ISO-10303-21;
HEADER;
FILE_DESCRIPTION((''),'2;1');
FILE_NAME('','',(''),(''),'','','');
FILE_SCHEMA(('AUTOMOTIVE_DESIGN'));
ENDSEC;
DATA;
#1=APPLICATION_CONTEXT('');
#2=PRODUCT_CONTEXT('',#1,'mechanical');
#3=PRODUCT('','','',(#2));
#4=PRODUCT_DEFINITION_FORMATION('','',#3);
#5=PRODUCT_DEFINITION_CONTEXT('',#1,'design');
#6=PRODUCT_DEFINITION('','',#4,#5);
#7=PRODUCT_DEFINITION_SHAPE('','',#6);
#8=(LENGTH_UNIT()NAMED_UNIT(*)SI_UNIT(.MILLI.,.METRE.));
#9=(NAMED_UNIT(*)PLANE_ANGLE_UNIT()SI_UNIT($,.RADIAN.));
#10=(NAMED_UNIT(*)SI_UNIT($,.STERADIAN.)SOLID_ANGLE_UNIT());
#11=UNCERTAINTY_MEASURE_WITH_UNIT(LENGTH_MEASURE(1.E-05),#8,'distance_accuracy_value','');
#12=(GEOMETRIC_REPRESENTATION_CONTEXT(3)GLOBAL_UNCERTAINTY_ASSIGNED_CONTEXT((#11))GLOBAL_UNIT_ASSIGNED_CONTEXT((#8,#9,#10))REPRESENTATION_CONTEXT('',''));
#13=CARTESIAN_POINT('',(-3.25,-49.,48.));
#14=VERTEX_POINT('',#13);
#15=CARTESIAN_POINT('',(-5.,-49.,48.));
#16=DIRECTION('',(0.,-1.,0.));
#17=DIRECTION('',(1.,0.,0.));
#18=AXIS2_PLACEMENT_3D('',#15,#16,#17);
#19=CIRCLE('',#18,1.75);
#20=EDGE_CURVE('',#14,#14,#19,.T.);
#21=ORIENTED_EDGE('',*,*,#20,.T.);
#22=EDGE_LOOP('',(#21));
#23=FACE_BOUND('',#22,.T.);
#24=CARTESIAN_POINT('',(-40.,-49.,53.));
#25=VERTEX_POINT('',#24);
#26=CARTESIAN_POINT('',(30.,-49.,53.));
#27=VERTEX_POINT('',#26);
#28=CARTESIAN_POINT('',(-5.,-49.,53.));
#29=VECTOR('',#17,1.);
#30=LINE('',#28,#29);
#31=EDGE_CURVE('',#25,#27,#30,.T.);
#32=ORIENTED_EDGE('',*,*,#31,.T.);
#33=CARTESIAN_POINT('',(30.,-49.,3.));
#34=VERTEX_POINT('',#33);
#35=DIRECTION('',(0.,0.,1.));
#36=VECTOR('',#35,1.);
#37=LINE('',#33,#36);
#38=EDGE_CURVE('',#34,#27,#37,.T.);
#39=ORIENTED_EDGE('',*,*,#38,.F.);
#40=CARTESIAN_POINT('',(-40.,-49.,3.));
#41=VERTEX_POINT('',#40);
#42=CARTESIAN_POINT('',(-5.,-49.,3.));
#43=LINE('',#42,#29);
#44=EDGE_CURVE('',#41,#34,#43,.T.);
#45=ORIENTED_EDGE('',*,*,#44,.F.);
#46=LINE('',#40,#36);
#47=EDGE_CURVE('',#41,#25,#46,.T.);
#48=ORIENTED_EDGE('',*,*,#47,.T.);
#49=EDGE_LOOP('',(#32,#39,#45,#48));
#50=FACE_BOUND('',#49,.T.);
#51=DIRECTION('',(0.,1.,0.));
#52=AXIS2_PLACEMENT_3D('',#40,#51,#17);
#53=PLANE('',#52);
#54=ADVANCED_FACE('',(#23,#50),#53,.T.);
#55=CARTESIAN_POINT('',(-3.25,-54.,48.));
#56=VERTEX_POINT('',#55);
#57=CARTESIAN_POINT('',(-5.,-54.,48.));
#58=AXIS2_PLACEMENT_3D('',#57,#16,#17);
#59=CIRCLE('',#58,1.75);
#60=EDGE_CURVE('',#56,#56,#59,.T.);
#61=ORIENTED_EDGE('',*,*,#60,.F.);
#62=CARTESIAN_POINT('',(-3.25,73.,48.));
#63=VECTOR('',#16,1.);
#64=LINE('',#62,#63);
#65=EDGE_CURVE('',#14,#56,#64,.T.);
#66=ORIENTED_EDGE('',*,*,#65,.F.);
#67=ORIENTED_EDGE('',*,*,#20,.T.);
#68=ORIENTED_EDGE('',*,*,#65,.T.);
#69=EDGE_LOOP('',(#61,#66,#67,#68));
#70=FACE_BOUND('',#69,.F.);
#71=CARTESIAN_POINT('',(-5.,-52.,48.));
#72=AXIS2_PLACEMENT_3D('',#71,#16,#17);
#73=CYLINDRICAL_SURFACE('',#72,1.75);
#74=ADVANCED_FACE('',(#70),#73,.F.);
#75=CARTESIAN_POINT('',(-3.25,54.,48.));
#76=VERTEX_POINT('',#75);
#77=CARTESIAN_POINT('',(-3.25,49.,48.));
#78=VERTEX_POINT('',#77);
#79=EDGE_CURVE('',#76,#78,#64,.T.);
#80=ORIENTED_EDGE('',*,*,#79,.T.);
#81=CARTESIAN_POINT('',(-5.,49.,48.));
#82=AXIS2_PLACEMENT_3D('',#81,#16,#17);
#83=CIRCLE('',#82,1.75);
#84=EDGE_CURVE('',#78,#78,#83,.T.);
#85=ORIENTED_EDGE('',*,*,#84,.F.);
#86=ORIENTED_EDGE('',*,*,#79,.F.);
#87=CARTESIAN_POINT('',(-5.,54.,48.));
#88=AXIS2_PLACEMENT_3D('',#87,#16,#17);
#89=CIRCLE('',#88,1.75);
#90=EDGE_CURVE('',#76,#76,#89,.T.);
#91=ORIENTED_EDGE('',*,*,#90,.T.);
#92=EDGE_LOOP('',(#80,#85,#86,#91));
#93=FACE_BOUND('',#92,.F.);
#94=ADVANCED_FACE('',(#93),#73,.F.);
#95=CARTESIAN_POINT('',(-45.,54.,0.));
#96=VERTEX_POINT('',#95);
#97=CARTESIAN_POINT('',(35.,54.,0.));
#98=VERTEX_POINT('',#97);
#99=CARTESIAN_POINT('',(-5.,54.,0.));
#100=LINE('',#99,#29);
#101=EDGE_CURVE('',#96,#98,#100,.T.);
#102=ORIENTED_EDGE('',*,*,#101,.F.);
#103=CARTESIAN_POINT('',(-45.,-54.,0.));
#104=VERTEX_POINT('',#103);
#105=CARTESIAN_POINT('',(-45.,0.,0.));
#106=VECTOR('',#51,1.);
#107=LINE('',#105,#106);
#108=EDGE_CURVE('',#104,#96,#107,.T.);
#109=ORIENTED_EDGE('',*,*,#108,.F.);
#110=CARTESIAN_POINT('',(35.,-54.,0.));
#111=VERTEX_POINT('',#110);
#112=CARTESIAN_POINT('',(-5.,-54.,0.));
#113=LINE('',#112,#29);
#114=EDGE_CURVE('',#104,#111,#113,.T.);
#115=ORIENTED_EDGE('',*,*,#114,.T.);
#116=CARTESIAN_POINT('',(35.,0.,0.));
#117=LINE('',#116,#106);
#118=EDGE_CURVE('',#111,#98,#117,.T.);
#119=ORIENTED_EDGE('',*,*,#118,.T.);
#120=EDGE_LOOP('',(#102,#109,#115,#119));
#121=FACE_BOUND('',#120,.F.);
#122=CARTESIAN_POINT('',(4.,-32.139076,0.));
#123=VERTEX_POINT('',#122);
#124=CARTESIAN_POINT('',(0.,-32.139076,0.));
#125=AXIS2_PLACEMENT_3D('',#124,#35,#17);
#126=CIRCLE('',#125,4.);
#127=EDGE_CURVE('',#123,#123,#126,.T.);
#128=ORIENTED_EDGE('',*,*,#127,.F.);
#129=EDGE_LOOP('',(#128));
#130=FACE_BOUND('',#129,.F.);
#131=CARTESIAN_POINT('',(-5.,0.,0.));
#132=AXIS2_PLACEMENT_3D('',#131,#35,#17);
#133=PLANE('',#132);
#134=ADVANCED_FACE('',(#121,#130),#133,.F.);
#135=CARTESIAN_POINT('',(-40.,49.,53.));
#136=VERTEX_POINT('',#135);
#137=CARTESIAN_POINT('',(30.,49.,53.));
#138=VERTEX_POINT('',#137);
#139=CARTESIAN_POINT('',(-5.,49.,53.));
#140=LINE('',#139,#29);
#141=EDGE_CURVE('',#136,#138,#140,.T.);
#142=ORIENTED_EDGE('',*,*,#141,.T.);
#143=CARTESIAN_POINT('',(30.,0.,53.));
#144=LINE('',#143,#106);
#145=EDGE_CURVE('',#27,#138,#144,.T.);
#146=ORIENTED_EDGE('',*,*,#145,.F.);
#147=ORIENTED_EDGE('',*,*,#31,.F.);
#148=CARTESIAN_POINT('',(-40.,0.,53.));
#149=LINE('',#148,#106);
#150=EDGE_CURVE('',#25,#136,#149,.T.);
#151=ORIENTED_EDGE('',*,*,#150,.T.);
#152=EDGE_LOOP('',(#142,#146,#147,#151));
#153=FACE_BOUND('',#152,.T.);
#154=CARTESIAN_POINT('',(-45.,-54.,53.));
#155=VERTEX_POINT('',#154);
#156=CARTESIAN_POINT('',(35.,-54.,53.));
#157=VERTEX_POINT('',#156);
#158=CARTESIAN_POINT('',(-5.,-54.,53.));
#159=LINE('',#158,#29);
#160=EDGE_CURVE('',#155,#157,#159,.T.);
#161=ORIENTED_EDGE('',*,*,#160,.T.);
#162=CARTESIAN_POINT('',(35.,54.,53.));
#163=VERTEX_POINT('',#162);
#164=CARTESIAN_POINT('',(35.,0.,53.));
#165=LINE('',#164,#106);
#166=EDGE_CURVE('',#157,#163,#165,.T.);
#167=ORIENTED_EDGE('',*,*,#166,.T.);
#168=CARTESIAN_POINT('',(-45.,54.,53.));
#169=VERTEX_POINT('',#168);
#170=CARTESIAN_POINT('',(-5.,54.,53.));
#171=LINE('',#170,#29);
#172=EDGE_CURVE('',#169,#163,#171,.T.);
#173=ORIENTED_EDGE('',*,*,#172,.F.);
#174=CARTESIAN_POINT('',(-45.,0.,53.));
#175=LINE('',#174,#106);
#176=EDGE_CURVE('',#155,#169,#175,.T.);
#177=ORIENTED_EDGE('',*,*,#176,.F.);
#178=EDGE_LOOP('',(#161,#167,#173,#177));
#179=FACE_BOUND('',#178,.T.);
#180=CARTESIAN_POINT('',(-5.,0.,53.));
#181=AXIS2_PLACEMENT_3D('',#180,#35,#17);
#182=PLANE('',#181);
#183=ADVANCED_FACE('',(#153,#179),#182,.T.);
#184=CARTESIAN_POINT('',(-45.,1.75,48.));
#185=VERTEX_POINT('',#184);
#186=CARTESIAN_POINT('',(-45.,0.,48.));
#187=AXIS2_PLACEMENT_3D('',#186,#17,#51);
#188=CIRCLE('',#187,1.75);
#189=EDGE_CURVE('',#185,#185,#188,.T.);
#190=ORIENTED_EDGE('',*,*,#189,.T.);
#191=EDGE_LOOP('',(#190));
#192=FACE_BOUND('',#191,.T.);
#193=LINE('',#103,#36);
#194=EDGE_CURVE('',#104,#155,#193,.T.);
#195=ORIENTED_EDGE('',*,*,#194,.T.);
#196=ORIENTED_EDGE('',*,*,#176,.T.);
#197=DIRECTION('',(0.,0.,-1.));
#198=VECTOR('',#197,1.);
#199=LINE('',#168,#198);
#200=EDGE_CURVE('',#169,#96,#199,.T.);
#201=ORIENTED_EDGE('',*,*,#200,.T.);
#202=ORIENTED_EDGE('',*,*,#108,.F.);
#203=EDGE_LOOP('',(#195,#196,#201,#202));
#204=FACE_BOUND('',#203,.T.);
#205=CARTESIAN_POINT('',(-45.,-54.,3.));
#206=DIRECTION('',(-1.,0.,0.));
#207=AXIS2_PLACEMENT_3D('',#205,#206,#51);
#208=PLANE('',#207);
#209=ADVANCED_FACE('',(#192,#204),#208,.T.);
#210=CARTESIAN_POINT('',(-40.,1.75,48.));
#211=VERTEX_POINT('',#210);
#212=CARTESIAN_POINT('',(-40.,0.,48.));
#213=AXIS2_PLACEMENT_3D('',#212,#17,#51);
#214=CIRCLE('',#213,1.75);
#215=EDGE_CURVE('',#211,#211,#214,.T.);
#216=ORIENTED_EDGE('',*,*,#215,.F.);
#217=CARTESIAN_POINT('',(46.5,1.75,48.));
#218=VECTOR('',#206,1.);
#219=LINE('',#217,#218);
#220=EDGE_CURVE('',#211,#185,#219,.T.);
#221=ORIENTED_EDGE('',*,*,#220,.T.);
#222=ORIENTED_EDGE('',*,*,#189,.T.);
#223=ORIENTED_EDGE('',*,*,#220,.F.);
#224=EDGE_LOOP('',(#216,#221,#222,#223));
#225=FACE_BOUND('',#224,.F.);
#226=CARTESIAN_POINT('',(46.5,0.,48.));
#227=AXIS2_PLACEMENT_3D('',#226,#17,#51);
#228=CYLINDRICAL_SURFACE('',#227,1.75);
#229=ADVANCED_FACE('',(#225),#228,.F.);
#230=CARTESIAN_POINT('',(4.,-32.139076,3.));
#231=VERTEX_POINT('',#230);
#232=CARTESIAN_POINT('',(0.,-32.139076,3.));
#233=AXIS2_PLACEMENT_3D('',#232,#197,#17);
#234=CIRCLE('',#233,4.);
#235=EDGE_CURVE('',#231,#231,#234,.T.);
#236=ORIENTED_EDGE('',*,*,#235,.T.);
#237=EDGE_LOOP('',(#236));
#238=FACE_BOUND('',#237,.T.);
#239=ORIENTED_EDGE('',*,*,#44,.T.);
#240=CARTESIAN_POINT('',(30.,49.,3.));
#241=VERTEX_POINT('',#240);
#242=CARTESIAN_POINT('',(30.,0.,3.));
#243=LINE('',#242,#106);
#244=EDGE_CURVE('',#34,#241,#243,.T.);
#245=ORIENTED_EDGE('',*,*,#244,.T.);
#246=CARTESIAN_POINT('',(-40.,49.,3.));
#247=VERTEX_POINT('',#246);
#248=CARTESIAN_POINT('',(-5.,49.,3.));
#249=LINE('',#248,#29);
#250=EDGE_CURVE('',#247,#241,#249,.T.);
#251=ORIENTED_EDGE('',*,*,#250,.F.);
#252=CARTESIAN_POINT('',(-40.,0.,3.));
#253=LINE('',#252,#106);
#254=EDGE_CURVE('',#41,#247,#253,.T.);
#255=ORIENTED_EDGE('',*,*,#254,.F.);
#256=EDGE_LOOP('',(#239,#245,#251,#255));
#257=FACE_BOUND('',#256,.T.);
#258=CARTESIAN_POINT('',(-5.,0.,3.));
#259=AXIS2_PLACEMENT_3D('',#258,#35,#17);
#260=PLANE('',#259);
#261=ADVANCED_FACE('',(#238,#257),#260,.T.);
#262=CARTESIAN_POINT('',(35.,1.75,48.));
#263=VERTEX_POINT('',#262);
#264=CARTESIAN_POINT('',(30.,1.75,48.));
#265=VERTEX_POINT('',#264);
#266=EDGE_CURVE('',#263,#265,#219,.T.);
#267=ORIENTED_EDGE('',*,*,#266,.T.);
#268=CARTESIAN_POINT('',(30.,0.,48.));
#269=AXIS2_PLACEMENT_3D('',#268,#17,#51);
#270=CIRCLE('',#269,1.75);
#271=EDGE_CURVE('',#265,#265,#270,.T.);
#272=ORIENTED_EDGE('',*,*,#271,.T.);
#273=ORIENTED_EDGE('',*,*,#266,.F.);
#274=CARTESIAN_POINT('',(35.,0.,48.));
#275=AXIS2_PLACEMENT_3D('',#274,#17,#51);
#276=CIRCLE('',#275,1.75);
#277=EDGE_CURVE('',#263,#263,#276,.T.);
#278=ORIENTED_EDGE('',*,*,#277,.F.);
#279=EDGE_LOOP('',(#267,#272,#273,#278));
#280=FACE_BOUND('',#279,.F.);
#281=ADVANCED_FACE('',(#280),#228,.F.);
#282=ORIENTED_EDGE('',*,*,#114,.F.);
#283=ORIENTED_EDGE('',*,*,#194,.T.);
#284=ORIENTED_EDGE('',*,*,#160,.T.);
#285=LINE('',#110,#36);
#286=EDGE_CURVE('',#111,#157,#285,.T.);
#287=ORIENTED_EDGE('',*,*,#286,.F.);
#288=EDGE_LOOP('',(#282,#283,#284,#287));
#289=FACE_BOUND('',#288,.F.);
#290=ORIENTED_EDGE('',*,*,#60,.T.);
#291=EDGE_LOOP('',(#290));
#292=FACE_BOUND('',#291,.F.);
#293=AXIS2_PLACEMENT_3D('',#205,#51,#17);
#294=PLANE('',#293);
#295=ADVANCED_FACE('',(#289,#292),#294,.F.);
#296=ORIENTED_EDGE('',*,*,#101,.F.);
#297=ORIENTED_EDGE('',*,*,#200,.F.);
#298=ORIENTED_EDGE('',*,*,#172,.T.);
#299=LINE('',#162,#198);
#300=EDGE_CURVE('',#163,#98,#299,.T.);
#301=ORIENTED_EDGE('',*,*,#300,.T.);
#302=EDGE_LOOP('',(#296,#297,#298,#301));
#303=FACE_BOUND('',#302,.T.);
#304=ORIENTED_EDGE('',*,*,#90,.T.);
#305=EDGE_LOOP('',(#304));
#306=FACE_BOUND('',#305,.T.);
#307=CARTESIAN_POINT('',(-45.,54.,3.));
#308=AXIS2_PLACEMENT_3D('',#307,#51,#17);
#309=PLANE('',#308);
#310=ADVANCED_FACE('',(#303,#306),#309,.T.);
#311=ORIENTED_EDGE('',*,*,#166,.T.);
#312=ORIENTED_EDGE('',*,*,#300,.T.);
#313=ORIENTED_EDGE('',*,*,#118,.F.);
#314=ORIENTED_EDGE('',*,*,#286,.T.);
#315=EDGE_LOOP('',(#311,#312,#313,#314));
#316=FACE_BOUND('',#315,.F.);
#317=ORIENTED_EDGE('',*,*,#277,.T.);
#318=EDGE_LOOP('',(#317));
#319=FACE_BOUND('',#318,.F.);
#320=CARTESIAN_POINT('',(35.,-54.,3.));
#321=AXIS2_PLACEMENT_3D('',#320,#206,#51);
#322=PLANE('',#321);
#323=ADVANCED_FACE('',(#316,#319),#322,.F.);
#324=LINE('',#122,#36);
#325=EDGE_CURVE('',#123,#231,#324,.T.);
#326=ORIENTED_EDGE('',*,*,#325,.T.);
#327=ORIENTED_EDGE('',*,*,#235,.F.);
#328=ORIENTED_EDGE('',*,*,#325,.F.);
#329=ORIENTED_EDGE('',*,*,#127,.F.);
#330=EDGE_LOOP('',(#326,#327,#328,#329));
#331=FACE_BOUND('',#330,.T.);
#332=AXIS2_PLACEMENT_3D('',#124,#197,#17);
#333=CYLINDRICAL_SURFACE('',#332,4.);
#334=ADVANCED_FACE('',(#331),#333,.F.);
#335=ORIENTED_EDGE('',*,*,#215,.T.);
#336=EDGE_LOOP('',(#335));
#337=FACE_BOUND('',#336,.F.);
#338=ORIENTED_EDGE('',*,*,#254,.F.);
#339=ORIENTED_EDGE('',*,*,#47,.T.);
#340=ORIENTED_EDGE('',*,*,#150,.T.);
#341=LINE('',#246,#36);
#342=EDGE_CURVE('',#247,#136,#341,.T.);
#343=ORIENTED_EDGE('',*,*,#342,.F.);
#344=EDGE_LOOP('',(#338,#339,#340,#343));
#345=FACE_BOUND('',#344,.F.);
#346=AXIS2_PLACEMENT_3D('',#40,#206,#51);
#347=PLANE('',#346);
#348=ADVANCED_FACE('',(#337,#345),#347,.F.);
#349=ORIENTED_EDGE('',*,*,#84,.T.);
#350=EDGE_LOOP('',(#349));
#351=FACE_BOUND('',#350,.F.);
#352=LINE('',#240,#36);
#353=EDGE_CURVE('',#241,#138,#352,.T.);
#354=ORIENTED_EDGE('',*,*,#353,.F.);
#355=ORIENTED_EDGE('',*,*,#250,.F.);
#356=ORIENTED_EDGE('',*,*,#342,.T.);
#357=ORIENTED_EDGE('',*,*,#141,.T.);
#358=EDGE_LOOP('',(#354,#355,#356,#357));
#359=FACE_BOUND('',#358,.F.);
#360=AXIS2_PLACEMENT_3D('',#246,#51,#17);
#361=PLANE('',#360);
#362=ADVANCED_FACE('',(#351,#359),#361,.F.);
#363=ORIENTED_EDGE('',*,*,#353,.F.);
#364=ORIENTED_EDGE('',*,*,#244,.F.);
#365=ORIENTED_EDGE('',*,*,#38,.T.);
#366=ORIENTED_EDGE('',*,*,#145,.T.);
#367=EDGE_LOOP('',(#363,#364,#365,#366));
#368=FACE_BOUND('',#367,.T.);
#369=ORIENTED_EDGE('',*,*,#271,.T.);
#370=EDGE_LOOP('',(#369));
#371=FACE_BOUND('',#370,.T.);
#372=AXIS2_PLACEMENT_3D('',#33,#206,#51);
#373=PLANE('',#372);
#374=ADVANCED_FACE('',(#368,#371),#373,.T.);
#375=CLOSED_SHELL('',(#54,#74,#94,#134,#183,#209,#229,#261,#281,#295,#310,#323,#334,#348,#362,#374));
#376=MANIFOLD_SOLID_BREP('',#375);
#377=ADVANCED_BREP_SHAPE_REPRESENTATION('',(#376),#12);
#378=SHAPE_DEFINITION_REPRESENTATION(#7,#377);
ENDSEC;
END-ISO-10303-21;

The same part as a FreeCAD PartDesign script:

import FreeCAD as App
import Part
import Sketcher
from FreeCAD import Vector
Q = App.Units.Quantity

doc = App.newDocument("Part")
body = doc.addObject("PartDesign::Body", "Body")

sketch1 = body.newObject("Sketcher::SketchObject", "Sketch")
sketch1.AttachmentSupport = (doc.getObject("XY_Plane"), [""])
sketch1.MapMode = "FlatFace"
sketch1.addGeometry([
    Part.LineSegment(Vector(-45, 54, 0), Vector(-45, -54, 0)),
    Part.LineSegment(Vector(-45, -54, 0), Vector(35, -54, 0)),
    Part.LineSegment(Vector(35, -54, 0), Vector(35, 54, 0)),
    Part.LineSegment(Vector(35, 54, 0), Vector(-45, 54, 0)),
], False)
sketch1.addConstraint([
    Sketcher.Constraint("Coincident", 0, 2, 1, 1),
    Sketcher.Constraint("Coincident", 1, 2, 2, 1),
    Sketcher.Constraint("Coincident", 2, 2, 3, 1),
    Sketcher.Constraint("Coincident", 3, 2, 0, 1),
    Sketcher.Constraint("Vertical", 0),
    Sketcher.Constraint("Horizontal", 1),
    Sketcher.Constraint("Vertical", 2),
    Sketcher.Constraint("Horizontal", 3),
    Sketcher.Constraint("DistanceX", 1, 1, 1, 2, Q("80 mm")),
    Sketcher.Constraint("DistanceY", 0, 2, 0, 1, Q("108 mm")),
    Sketcher.Constraint("DistanceX", 0, 2, -1, 1, Q("45 mm")),
    Sketcher.Constraint("DistanceY", 0, 2, -1, 1, Q("54 mm")),
])
pad1 = body.newObject("PartDesign::Pad", "Pad")
pad1.Profile = sketch1
pad1.Length = 3

sketch2 = body.newObject("Sketcher::SketchObject", "Sketch001")
sketch2.AttachmentSupport = (doc.getObject("XY_Plane"), [""])
sketch2.MapMode = "FlatFace"
sketch2.AttachmentOffset = App.Placement(Vector(0, 0, 3), App.Rotation())
sketch2.addGeometry([
    Part.LineSegment(Vector(-45, 54, 0), Vector(-45, -54, 0)),
    Part.LineSegment(Vector(-45, -54, 0), Vector(35, -54, 0)),
    Part.LineSegment(Vector(35, -54, 0), Vector(35, 54, 0)),
    Part.LineSegment(Vector(35, 54, 0), Vector(-45, 54, 0)),
    Part.LineSegment(Vector(30, -49, 0), Vector(-40, -49, 0)),
    Part.LineSegment(Vector(-40, -49, 0), Vector(-40, 49, 0)),
    Part.LineSegment(Vector(-40, 49, 0), Vector(30, 49, 0)),
    Part.LineSegment(Vector(30, 49, 0), Vector(30, -49, 0)),
], False)
sketch2.addConstraint([
    Sketcher.Constraint("Coincident", 0, 2, 1, 1),
    Sketcher.Constraint("Coincident", 1, 2, 2, 1),
    Sketcher.Constraint("Coincident", 2, 2, 3, 1),
    Sketcher.Constraint("Coincident", 3, 2, 0, 1),
    Sketcher.Constraint("Coincident", 4, 2, 5, 1),
    Sketcher.Constraint("Coincident", 5, 2, 6, 1),
    Sketcher.Constraint("Coincident", 6, 2, 7, 1),
    Sketcher.Constraint("Coincident", 7, 2, 4, 1),
    Sketcher.Constraint("Vertical", 0),
    Sketcher.Constraint("Horizontal", 1),
    Sketcher.Constraint("Vertical", 2),
    Sketcher.Constraint("Horizontal", 3),
    Sketcher.Constraint("Horizontal", 4),
    Sketcher.Constraint("Vertical", 5),
    Sketcher.Constraint("Horizontal", 6),
    Sketcher.Constraint("Vertical", 7),
    Sketcher.Constraint("DistanceX", 1, 1, 1, 2, Q("80 mm")),
    Sketcher.Constraint("DistanceX", 4, 2, 4, 1, Q("70 mm")),
    Sketcher.Constraint("DistanceY", 0, 2, 0, 1, Q("108 mm")),
    Sketcher.Constraint("DistanceY", 5, 1, 5, 2, Q("98 mm")),
    Sketcher.Constraint("DistanceX", 0, 2, -1, 1, Q("45 mm")),
    Sketcher.Constraint("DistanceY", 0, 2, -1, 1, Q("54 mm")),
    Sketcher.Constraint("DistanceX", 4, 2, -1, 1, Q("40 mm")),
    Sketcher.Constraint("DistanceY", 4, 2, -1, 1, Q("49 mm")),
])
pad2 = body.newObject("PartDesign::Pad", "Pad001")
pad2.Profile = sketch2
pad2.Length = 50

sketch3 = body.newObject("Sketcher::SketchObject", "Sketch002")
sketch3.AttachmentSupport = (doc.getObject("XY_Plane"), [""])
sketch3.MapMode = "FlatFace"
sketch3.addGeometry(Part.Circle(Vector(0, -32.1, 0), Vector(0, 0, 1), 4), False)
sketch3.addConstraint([
    Sketcher.Constraint("PointOnObject", 0, 3, -2),
    Sketcher.Constraint("Diameter", 0, Q("8 mm")),
    Sketcher.Constraint("DistanceY", 0, 3, -1, 1, Q("32.139076 mm")),
])
pocket1 = body.newObject("PartDesign::Pocket", "Pocket")
pocket1.Profile = sketch3
pocket1.Length = 5
pocket1.Reversed = True

sketch4 = body.newObject("Sketcher::SketchObject", "Sketch003")
sketch4.AttachmentSupport = (doc.getObject("XZ_Plane"), [""])
sketch4.MapMode = "FlatFace"
sketch4.AttachmentOffset = App.Placement(Vector(0, 0, 52), App.Rotation())
sketch4.addGeometry(Part.Circle(Vector(-5, 48, 0), Vector(0, 0, 1), 1.8), False)
sketch4.addConstraint([
    Sketcher.Constraint("Diameter", 0, Q("3.5 mm")),
    Sketcher.Constraint("DistanceX", 0, 3, -1, 1, Q("5 mm")),
    Sketcher.Constraint("DistanceY", -1, 1, 0, 3, Q("48 mm")),
])
pocket2 = body.newObject("PartDesign::Pocket", "Pocket001")
pocket2.Profile = sketch4
pocket2.Length = 250
pocket2.Midplane = True

sketch5 = body.newObject("Sketcher::SketchObject", "Sketch004")
sketch5.AttachmentSupport = (doc.getObject("YZ_Plane"), [""])
sketch5.MapMode = "FlatFace"
sketch5.AttachmentOffset = App.Placement(Vector(0, 0, 46.5), App.Rotation())
sketch5.addGeometry(Part.Circle(Vector(0, 48, 0), Vector(0, 0, 1), 1.8), False)
sketch5.addConstraint([
    Sketcher.Constraint("PointOnObject", 0, 3, -2),
    Sketcher.Constraint("Diameter", 0, Q("3.5 mm")),
    Sketcher.Constraint("DistanceY", -1, 1, 0, 3, Q("48 mm")),
])
pocket3 = body.newObject("PartDesign::Pocket", "Pocket002")
pocket3.Profile = sketch5
pocket3.Length = 105

doc.recompute()
